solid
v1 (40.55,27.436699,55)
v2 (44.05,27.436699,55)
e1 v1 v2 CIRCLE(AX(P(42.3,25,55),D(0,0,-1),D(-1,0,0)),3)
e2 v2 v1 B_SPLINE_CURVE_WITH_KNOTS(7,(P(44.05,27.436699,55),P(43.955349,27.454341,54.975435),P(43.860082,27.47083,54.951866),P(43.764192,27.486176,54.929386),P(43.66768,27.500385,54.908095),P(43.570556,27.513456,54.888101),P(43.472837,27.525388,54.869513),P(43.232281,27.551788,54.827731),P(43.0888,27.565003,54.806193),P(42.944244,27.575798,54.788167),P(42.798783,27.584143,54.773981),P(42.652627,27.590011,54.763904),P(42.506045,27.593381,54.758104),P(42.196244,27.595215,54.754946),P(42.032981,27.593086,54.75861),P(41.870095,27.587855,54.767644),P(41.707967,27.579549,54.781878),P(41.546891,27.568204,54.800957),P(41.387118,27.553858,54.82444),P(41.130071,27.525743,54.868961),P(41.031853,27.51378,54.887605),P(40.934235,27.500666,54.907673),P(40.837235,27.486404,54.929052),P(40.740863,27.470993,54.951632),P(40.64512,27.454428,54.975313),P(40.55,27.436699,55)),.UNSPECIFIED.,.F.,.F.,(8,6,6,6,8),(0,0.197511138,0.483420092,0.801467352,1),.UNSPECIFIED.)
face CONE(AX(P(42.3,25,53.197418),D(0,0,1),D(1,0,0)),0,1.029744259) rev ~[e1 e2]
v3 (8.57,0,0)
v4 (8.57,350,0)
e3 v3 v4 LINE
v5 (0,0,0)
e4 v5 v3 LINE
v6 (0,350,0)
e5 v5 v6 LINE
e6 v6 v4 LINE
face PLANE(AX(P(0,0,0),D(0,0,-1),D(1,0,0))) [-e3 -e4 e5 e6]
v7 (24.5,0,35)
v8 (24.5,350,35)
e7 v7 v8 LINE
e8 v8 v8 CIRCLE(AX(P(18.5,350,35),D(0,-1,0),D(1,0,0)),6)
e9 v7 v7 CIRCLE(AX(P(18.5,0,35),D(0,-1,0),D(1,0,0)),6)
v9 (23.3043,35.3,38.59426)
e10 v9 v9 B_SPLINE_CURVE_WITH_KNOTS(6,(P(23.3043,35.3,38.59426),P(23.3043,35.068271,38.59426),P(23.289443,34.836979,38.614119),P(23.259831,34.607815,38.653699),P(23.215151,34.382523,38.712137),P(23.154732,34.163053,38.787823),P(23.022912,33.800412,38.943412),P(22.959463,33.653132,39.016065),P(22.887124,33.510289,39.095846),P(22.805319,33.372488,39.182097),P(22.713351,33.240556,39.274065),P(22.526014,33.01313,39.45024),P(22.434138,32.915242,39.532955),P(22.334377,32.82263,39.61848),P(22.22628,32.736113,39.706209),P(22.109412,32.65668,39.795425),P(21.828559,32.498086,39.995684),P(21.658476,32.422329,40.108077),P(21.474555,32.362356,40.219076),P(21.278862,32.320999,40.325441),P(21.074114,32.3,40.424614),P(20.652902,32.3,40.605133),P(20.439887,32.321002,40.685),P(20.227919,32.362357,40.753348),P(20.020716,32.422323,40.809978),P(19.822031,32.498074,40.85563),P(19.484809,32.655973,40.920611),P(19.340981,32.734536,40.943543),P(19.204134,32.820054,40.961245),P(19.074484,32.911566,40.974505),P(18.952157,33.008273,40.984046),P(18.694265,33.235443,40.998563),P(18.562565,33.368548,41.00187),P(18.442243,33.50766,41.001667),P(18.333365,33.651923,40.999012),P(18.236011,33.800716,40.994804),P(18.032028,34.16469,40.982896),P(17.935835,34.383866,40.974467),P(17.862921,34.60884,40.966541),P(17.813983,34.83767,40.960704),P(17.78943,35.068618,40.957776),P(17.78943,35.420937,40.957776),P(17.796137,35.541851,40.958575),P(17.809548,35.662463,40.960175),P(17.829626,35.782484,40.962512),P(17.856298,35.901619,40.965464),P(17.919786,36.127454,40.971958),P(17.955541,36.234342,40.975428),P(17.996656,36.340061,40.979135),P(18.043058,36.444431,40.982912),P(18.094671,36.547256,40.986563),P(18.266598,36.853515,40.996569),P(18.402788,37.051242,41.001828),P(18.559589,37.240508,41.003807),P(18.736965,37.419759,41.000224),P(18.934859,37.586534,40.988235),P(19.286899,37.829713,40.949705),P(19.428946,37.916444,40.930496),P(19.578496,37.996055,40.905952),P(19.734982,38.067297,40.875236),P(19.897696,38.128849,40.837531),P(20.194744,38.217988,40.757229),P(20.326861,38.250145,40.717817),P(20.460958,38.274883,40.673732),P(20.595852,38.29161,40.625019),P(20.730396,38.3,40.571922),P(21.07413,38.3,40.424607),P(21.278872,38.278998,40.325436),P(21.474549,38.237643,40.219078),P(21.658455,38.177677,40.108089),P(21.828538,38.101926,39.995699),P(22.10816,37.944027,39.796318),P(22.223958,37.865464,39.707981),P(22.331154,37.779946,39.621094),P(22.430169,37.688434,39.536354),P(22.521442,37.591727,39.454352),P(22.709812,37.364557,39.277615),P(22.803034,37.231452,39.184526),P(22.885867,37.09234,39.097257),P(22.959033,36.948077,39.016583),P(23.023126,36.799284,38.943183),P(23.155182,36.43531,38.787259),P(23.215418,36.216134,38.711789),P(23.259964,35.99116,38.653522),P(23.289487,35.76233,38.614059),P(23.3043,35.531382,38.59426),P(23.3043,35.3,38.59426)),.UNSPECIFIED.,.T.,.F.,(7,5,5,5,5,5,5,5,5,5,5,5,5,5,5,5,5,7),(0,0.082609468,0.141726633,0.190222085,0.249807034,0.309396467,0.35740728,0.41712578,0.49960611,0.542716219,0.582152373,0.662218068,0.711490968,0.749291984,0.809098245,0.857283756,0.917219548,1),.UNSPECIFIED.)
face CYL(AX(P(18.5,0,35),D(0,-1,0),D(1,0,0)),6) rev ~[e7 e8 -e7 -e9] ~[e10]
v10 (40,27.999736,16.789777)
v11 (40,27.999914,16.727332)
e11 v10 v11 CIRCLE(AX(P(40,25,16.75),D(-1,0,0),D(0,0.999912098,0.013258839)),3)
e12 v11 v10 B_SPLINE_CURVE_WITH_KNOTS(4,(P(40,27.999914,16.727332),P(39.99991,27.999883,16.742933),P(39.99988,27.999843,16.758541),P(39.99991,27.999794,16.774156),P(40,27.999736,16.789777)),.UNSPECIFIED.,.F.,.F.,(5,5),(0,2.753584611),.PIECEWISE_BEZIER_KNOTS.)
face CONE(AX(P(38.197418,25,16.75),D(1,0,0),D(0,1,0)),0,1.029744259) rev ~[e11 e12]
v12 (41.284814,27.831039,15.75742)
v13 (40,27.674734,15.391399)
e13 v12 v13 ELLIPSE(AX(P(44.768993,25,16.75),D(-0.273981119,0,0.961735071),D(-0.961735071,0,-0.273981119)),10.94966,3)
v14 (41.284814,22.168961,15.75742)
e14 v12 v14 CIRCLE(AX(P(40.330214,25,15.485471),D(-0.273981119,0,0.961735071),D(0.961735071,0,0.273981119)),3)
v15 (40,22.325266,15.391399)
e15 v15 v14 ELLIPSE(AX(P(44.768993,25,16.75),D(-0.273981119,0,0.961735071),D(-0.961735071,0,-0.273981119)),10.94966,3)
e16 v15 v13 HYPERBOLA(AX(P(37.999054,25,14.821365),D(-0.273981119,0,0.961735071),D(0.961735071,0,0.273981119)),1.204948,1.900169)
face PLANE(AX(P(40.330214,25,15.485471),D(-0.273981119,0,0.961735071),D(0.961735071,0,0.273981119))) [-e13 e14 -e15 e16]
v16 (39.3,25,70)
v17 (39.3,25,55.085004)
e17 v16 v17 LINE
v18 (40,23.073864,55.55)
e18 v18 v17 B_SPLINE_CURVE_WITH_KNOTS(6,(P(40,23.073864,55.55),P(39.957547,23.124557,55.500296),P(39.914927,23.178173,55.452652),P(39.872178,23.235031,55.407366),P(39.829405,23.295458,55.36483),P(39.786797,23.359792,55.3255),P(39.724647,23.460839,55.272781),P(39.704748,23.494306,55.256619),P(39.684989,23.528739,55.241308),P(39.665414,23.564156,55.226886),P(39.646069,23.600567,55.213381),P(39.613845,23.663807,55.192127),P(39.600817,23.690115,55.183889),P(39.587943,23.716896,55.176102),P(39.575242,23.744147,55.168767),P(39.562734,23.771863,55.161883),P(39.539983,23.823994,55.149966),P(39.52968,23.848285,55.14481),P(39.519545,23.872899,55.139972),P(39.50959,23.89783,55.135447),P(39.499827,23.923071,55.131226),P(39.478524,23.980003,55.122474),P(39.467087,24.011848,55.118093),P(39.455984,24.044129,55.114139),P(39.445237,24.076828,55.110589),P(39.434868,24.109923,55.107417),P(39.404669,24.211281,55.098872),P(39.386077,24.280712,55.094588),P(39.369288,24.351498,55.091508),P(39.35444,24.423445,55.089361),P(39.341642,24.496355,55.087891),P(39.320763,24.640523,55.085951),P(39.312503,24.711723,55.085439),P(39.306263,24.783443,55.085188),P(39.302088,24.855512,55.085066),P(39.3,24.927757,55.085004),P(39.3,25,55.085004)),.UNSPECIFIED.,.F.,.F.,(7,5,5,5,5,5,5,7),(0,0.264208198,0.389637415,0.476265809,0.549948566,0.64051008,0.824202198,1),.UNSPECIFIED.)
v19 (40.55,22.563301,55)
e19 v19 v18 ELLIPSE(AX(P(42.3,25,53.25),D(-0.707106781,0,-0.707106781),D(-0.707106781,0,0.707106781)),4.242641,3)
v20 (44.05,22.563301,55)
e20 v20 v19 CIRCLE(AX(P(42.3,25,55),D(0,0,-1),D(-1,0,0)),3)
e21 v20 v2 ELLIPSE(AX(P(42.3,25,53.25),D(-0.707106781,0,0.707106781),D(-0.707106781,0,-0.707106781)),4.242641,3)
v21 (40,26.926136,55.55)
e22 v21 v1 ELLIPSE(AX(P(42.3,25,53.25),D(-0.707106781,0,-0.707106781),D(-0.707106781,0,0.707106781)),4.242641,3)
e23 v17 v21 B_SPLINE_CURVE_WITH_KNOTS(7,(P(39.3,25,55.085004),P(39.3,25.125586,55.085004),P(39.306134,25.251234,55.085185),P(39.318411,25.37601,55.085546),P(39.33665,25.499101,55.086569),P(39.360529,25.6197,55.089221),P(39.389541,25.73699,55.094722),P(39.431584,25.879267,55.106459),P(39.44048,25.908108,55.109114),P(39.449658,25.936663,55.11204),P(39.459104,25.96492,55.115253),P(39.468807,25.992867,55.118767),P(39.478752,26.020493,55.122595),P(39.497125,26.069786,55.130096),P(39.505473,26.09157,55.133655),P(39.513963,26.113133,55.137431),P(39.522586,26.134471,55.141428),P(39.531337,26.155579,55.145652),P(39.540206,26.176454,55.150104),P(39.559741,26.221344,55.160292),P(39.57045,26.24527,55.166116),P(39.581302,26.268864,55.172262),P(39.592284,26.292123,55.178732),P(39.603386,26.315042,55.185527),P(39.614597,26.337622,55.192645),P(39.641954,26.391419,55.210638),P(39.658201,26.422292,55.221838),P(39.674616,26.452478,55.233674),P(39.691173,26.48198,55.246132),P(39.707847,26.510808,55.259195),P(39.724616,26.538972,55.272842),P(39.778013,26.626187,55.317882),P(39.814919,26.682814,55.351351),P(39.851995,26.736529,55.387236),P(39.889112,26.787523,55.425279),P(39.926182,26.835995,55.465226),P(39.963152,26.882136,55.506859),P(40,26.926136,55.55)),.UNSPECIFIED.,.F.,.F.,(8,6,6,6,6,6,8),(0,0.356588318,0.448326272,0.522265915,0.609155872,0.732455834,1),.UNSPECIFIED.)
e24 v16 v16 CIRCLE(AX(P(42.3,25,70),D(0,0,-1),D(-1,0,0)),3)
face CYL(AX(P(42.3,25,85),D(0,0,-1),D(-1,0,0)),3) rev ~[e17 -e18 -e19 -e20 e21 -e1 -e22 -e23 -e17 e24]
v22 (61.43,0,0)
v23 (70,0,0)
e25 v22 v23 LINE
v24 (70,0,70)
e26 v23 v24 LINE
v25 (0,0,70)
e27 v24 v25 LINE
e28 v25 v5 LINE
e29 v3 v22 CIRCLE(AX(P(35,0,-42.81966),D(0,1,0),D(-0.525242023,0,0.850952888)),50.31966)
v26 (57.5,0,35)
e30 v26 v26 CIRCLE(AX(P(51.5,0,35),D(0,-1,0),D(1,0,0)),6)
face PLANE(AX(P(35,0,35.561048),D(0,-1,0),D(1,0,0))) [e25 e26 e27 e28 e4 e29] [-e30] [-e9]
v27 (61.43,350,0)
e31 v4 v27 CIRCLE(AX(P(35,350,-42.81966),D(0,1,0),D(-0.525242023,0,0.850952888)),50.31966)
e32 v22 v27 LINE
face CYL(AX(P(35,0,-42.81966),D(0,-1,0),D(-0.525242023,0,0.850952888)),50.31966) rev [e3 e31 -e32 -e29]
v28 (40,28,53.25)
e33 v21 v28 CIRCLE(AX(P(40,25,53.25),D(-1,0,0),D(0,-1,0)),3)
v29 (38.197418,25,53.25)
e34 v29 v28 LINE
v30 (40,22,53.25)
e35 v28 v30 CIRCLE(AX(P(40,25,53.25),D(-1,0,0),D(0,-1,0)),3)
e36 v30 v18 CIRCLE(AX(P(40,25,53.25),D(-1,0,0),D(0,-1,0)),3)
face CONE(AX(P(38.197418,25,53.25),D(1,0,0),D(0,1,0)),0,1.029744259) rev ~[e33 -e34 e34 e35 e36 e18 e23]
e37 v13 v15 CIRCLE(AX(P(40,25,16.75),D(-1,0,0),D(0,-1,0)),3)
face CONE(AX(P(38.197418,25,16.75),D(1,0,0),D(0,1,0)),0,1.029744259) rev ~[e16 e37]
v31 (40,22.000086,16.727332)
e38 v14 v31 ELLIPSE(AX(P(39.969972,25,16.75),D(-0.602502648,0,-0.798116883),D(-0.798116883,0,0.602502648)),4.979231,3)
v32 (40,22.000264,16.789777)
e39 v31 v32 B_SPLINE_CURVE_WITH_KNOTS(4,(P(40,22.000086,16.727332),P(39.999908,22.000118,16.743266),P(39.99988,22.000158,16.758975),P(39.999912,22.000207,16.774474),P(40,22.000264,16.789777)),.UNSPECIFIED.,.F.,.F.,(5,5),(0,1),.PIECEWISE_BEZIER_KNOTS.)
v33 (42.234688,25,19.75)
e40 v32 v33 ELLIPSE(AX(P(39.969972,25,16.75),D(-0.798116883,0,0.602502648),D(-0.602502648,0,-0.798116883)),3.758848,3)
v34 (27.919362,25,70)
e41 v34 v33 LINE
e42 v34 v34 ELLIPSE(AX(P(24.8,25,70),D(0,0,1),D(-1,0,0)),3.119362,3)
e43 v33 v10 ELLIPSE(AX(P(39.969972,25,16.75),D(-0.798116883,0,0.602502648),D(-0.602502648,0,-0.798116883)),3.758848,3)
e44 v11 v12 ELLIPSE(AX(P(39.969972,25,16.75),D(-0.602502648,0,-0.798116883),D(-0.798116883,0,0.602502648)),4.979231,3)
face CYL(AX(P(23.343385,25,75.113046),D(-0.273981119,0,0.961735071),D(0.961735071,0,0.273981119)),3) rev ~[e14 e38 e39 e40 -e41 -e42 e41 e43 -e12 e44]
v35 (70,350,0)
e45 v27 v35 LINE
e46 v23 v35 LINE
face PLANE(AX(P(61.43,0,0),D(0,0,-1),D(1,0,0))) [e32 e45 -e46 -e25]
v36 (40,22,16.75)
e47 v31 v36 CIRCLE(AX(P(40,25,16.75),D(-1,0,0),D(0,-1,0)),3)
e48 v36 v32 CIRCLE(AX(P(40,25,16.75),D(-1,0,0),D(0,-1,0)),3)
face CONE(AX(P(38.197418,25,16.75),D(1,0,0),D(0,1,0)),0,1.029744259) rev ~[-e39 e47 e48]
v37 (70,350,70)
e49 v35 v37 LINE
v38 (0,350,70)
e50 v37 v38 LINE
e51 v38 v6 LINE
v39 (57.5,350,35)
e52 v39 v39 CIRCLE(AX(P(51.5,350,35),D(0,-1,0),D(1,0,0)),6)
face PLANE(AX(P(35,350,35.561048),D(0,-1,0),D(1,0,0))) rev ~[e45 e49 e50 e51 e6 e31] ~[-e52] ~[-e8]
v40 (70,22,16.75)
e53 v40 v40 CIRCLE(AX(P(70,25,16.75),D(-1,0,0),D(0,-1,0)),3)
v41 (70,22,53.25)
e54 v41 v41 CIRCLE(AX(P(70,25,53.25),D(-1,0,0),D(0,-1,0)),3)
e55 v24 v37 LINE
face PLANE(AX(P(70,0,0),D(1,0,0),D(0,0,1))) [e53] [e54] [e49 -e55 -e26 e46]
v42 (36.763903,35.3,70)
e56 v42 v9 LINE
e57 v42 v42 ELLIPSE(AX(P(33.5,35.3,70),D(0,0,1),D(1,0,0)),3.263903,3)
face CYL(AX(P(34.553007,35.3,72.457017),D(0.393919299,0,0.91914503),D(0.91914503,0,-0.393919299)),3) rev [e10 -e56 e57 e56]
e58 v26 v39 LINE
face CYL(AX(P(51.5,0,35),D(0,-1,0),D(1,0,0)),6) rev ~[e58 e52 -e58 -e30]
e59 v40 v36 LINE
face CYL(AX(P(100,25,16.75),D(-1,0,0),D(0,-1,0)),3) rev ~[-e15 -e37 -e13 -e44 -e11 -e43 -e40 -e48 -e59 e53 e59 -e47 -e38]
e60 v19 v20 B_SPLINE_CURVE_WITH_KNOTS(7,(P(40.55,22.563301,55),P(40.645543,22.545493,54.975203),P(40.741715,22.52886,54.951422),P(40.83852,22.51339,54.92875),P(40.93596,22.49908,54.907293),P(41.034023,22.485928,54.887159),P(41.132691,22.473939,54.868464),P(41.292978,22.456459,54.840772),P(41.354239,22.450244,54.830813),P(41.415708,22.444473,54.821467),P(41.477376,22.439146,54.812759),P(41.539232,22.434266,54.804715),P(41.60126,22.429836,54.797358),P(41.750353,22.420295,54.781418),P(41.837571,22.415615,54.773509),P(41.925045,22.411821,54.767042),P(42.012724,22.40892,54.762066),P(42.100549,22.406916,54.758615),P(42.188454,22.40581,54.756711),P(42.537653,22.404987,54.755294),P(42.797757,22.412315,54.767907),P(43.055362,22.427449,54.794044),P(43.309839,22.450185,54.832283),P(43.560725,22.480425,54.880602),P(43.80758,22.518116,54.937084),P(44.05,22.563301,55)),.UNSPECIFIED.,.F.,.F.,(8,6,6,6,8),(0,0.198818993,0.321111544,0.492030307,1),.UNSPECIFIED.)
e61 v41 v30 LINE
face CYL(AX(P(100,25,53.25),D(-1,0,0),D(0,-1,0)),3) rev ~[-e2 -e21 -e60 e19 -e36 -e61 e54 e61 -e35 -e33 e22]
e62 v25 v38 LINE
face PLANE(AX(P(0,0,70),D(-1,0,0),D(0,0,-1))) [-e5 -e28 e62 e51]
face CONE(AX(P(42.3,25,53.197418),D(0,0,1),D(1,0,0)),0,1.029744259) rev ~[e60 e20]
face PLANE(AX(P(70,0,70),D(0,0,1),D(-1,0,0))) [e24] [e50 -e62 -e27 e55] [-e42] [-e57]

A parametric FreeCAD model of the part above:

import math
import FreeCAD as App
import Part
import Sketcher
from FreeCAD import Vector

doc = App.newDocument("Part")
params = doc.addObject("Spreadsheet::Sheet", "Params")
for row, (alias, value) in enumerate([
    ("sketch1_diameter", "12 mm"),
    ("sketch1_width", "70 mm"),
    ("sketch1_width2", "8.57 mm"),
    ("pad1_length", "350 mm"),
    ("sketch2_diameter", "6 mm"),
    ("hole_diameter", "6 mm"),
    ("hole_depth", "30 mm"),
    ("sketch3_diameter", "6 mm"),
    ("hole2_diameter", "6 mm"),
    ("hole2_depth", "15 mm"),
    ("sketch4_diameter", "6 mm"),
    ("hole3_diameter", "6 mm"),
    ("hole3_depth", "30 mm"),
    ("sketch5_diameter", "6 mm"),
    ("pocket1_length", "62 mm"),
    ("sketch6_diameter", "6 mm"),
    ("pocket2_length", "40 mm"),
], start=1):
    params.set(f"A{row}", alias)
    params.set(f"B{row}", "=" + value)
    params.setAlias(f"B{row}", alias)

body = doc.addObject("PartDesign::Body", "Body")

sketch1 = body.newObject("Sketcher::SketchObject", "Sketch")
sketch1.AttachmentSupport = (doc.getObject("XZ_Plane"), [""])
sketch1.MapMode = "FlatFace"
sketch1.addGeometry([
    Part.LineSegment(Vector(0, 70, 0), Vector(0, 0, 0)),
    Part.LineSegment(Vector(0, 0, 0), Vector(9, 0, 0)),
    Part.ArcOfCircle(Part.Circle(Vector(35, -43, 0), Vector(0, 0, 1), 50), math.radians(58), math.radians(122)),
    Part.LineSegment(Vector(61, 0, 0), Vector(70, 0, 0)),
    Part.LineSegment(Vector(70, 0, 0), Vector(70, 70, 0)),
    Part.LineSegment(Vector(70, 70, 0), Vector(0, 70, 0)),
    Part.Circle(Vector(18, 35, 0), Vector(0, 0, 1), 6),
    Part.Circle(Vector(52, 35, 0), Vector(0, 0, 1), 6),
], False)
sketch1.addConstraint([
    Sketcher.Constraint("Coincident", 0, 2, 1, 1),
    Sketcher.Constraint("Coincident", 1, 2, 2, 2),
    Sketcher.Constraint("Coincident", 2, 1, 3, 1),
    Sketcher.Constraint("Coincident", 3, 2, 4, 1),
    Sketcher.Constraint("Coincident", 4, 2, 5, 1),
    Sketcher.Constraint("Coincident", 5, 2, 0, 1),
    Sketcher.Constraint("Vertical", 0),
    Sketcher.Constraint("Horizontal", 1),
    Sketcher.Constraint("Horizontal", 3),
    Sketcher.Constraint("Vertical", 4),
    Sketcher.Constraint("Horizontal", 5),
    Sketcher.Constraint("Coincident", 0, 2, -1, 1),
    Sketcher.Constraint("Equal", 6, 7),
    Sketcher.Constraint("PointOnObject", 2, 1, -1),
    Sketcher.Constraint("Horizontal", 6, 3, 7, 3),
    Sketcher.Constraint("Equal", 1, 3),
    Sketcher.Constraint("Equal", 5, 0),
    Sketcher.Constraint("Diameter", 6, 12.0),
    Sketcher.Constraint("DistanceX", 5, 2, 5, 1, 70.0),
    Sketcher.Constraint("DistanceY", -1, 1, 6, 3, 35.0),
    Sketcher.Constraint("DistanceX", 6, 3, 7, 3, 33.0),
    Sketcher.Constraint("DistanceX", 1, 1, 1, 2, 8.57),
    Sketcher.Constraint("DistanceX", -1, 1, 6, 3, 18.5),
    Sketcher.Constraint("Radius", 2, 50.31966),
])
sketch1.setExpression("Constraints[17]", "Params.sketch1_diameter")
sketch1.setExpression("Constraints[18]", "Params.sketch1_width")
sketch1.setExpression("Constraints[21]", "Params.sketch1_width2")
pad1 = body.newObject("PartDesign::Pad", "Pad")
pad1.Profile = sketch1
pad1.setExpression("Length", "Params.pad1_length")
pad1.Reversed = True

sketch2 = body.newObject("Sketcher::SketchObject", "Sketch001")
sketch2.AttachmentSupport = (doc.getObject("YZ_Plane"), [""])
sketch2.MapMode = "FlatFace"
sketch2.AttachmentOffset = App.Placement(Vector(0, 0, 70), App.Rotation())
sketch2.addGeometry(Part.Circle(Vector(25, 53.2, 0), Vector(0, 0, 1), 3), False)
sketch2.addConstraint([
    Sketcher.Constraint("Diameter", 0, 6.0),
    Sketcher.Constraint("DistanceX", -1, 1, 0, 3, 25.0),
    Sketcher.Constraint("DistanceY", -1, 1, 0, 3, 53.25),
])
sketch2.setExpression("Constraints[0]", "Params.sketch2_diameter")
doc.recompute()
hole = body.newObject("PartDesign::Hole", "Hole")
hole.Profile = sketch2
hole.ThreadType = "None"
hole.setExpression("Diameter", "Params.hole_diameter")
hole.DepthType = "Dimension"
hole.setExpression("Depth", "Params.hole_depth")
hole.DrillPoint = "Angled"
hole.DrillPointAngle = 118

sketch3 = body.newObject("Sketcher::SketchObject", "Sketch002")
sketch3.AttachmentSupport = (doc.getObject("XY_Plane"), [""])
sketch3.MapMode = "FlatFace"
sketch3.AttachmentOffset = App.Placement(Vector(0, 0, 70), App.Rotation())
sketch3.addGeometry(Part.Circle(Vector(42.3, 25, 0), Vector(0, 0, 1), 3), False)
sketch3.addConstraint([
    Sketcher.Constraint("Diameter", 0, 6.0),
    Sketcher.Constraint("DistanceY", -1, 1, 0, 3, 25.0),
    Sketcher.Constraint("DistanceX", -1, 1, 0, 3, 42.3),
])
sketch3.setExpression("Constraints[0]", "Params.sketch3_diameter")
doc.recompute()
hole2 = body.newObject("PartDesign::Hole", "Hole001")
hole2.Profile = sketch3
hole2.ThreadType = "None"
hole2.setExpression("Diameter", "Params.hole2_diameter")
hole2.DepthType = "Dimension"
hole2.setExpression("Depth", "Params.hole2_depth")
hole2.DrillPoint = "Angled"
hole2.DrillPointAngle = 118

sketch4 = body.newObject("Sketcher::SketchObject", "Sketch003")
sketch4.AttachmentSupport = (doc.getObject("YZ_Plane"), [""])
sketch4.MapMode = "FlatFace"
sketch4.AttachmentOffset = App.Placement(Vector(0, 0, 70), App.Rotation())
sketch4.addGeometry(Part.Circle(Vector(25, 16.8, 0), Vector(0, 0, 1), 3), False)
sketch4.addConstraint([
    Sketcher.Constraint("Diameter", 0, 6.0),
    Sketcher.Constraint("DistanceX", -1, 1, 0, 3, 25.0),
    Sketcher.Constraint("DistanceY", -1, 1, 0, 3, 16.75),
])
sketch4.setExpression("Constraints[0]", "Params.sketch4_diameter")
doc.recompute()
hole3 = body.newObject("PartDesign::Hole", "Hole002")
hole3.Profile = sketch4
hole3.ThreadType = "None"
hole3.setExpression("Diameter", "Params.hole3_diameter")
hole3.DepthType = "Dimension"
hole3.setExpression("Depth", "Params.hole3_depth")
hole3.DrillPoint = "Angled"
hole3.DrillPointAngle = 118

sketch5 = body.newObject("Sketcher::SketchObject", "Sketch004")
sketch5.Placement = App.Placement(Vector(-18.039795, 0, 63.323718), App.Rotation(Vector(0.961735071, 0, 0.273981119), Vector(0, 1, 0), Vector(-0.273981119, 0, 0.961735071), "ZXY"))
sketch5.addGeometry(Part.Circle(Vector(43, 25, 0), Vector(0, 0, 1), 3), False)
sketch5.addConstraint([
    Sketcher.Constraint("Diameter", 0, 6.0),
    Sketcher.Constraint("DistanceY", -1, 1, 0, 3, 25.0),
    Sketcher.Constraint("DistanceX", -1, 1, 0, 3, 43.029708),
])
sketch5.setExpression("Constraints[0]", "Params.sketch5_diameter")
pocket1 = body.newObject("PartDesign::Pocket", "Pocket")
pocket1.Profile = sketch5
pocket1.setExpression("Length", "Params.pocket1_length")

sketch6 = body.newObject("Sketcher::SketchObject", "Sketch005")
sketch6.Placement = App.Placement(Vector(31.596111, 0, 73.724259), App.Rotation(Vector(0.91914503, 0, -0.393919299), Vector(0, -1, 0), Vector(-0.393919299, 0, -0.91914503), "ZXY"))
sketch6.addGeometry(Part.Circle(Vector(3.2, -35.3, 0), Vector(0, 0, 1), 3), False)
sketch6.addConstraint([
    Sketcher.Constraint("Diameter", 0, 6.0),
    Sketcher.Constraint("DistanceY", 0, 3, -1, 1, 35.3),
    Sketcher.Constraint("DistanceX", -1, 1, 0, 3, 3.217008),
])
sketch6.setExpression("Constraints[0]", "Params.sketch6_diameter")
pocket2 = body.newObject("PartDesign::Pocket", "Pocket001")
pocket2.Profile = sketch6
pocket2.setExpression("Length", "Params.pocket2_length")
pocket2.Reversed = True

doc.recompute()
